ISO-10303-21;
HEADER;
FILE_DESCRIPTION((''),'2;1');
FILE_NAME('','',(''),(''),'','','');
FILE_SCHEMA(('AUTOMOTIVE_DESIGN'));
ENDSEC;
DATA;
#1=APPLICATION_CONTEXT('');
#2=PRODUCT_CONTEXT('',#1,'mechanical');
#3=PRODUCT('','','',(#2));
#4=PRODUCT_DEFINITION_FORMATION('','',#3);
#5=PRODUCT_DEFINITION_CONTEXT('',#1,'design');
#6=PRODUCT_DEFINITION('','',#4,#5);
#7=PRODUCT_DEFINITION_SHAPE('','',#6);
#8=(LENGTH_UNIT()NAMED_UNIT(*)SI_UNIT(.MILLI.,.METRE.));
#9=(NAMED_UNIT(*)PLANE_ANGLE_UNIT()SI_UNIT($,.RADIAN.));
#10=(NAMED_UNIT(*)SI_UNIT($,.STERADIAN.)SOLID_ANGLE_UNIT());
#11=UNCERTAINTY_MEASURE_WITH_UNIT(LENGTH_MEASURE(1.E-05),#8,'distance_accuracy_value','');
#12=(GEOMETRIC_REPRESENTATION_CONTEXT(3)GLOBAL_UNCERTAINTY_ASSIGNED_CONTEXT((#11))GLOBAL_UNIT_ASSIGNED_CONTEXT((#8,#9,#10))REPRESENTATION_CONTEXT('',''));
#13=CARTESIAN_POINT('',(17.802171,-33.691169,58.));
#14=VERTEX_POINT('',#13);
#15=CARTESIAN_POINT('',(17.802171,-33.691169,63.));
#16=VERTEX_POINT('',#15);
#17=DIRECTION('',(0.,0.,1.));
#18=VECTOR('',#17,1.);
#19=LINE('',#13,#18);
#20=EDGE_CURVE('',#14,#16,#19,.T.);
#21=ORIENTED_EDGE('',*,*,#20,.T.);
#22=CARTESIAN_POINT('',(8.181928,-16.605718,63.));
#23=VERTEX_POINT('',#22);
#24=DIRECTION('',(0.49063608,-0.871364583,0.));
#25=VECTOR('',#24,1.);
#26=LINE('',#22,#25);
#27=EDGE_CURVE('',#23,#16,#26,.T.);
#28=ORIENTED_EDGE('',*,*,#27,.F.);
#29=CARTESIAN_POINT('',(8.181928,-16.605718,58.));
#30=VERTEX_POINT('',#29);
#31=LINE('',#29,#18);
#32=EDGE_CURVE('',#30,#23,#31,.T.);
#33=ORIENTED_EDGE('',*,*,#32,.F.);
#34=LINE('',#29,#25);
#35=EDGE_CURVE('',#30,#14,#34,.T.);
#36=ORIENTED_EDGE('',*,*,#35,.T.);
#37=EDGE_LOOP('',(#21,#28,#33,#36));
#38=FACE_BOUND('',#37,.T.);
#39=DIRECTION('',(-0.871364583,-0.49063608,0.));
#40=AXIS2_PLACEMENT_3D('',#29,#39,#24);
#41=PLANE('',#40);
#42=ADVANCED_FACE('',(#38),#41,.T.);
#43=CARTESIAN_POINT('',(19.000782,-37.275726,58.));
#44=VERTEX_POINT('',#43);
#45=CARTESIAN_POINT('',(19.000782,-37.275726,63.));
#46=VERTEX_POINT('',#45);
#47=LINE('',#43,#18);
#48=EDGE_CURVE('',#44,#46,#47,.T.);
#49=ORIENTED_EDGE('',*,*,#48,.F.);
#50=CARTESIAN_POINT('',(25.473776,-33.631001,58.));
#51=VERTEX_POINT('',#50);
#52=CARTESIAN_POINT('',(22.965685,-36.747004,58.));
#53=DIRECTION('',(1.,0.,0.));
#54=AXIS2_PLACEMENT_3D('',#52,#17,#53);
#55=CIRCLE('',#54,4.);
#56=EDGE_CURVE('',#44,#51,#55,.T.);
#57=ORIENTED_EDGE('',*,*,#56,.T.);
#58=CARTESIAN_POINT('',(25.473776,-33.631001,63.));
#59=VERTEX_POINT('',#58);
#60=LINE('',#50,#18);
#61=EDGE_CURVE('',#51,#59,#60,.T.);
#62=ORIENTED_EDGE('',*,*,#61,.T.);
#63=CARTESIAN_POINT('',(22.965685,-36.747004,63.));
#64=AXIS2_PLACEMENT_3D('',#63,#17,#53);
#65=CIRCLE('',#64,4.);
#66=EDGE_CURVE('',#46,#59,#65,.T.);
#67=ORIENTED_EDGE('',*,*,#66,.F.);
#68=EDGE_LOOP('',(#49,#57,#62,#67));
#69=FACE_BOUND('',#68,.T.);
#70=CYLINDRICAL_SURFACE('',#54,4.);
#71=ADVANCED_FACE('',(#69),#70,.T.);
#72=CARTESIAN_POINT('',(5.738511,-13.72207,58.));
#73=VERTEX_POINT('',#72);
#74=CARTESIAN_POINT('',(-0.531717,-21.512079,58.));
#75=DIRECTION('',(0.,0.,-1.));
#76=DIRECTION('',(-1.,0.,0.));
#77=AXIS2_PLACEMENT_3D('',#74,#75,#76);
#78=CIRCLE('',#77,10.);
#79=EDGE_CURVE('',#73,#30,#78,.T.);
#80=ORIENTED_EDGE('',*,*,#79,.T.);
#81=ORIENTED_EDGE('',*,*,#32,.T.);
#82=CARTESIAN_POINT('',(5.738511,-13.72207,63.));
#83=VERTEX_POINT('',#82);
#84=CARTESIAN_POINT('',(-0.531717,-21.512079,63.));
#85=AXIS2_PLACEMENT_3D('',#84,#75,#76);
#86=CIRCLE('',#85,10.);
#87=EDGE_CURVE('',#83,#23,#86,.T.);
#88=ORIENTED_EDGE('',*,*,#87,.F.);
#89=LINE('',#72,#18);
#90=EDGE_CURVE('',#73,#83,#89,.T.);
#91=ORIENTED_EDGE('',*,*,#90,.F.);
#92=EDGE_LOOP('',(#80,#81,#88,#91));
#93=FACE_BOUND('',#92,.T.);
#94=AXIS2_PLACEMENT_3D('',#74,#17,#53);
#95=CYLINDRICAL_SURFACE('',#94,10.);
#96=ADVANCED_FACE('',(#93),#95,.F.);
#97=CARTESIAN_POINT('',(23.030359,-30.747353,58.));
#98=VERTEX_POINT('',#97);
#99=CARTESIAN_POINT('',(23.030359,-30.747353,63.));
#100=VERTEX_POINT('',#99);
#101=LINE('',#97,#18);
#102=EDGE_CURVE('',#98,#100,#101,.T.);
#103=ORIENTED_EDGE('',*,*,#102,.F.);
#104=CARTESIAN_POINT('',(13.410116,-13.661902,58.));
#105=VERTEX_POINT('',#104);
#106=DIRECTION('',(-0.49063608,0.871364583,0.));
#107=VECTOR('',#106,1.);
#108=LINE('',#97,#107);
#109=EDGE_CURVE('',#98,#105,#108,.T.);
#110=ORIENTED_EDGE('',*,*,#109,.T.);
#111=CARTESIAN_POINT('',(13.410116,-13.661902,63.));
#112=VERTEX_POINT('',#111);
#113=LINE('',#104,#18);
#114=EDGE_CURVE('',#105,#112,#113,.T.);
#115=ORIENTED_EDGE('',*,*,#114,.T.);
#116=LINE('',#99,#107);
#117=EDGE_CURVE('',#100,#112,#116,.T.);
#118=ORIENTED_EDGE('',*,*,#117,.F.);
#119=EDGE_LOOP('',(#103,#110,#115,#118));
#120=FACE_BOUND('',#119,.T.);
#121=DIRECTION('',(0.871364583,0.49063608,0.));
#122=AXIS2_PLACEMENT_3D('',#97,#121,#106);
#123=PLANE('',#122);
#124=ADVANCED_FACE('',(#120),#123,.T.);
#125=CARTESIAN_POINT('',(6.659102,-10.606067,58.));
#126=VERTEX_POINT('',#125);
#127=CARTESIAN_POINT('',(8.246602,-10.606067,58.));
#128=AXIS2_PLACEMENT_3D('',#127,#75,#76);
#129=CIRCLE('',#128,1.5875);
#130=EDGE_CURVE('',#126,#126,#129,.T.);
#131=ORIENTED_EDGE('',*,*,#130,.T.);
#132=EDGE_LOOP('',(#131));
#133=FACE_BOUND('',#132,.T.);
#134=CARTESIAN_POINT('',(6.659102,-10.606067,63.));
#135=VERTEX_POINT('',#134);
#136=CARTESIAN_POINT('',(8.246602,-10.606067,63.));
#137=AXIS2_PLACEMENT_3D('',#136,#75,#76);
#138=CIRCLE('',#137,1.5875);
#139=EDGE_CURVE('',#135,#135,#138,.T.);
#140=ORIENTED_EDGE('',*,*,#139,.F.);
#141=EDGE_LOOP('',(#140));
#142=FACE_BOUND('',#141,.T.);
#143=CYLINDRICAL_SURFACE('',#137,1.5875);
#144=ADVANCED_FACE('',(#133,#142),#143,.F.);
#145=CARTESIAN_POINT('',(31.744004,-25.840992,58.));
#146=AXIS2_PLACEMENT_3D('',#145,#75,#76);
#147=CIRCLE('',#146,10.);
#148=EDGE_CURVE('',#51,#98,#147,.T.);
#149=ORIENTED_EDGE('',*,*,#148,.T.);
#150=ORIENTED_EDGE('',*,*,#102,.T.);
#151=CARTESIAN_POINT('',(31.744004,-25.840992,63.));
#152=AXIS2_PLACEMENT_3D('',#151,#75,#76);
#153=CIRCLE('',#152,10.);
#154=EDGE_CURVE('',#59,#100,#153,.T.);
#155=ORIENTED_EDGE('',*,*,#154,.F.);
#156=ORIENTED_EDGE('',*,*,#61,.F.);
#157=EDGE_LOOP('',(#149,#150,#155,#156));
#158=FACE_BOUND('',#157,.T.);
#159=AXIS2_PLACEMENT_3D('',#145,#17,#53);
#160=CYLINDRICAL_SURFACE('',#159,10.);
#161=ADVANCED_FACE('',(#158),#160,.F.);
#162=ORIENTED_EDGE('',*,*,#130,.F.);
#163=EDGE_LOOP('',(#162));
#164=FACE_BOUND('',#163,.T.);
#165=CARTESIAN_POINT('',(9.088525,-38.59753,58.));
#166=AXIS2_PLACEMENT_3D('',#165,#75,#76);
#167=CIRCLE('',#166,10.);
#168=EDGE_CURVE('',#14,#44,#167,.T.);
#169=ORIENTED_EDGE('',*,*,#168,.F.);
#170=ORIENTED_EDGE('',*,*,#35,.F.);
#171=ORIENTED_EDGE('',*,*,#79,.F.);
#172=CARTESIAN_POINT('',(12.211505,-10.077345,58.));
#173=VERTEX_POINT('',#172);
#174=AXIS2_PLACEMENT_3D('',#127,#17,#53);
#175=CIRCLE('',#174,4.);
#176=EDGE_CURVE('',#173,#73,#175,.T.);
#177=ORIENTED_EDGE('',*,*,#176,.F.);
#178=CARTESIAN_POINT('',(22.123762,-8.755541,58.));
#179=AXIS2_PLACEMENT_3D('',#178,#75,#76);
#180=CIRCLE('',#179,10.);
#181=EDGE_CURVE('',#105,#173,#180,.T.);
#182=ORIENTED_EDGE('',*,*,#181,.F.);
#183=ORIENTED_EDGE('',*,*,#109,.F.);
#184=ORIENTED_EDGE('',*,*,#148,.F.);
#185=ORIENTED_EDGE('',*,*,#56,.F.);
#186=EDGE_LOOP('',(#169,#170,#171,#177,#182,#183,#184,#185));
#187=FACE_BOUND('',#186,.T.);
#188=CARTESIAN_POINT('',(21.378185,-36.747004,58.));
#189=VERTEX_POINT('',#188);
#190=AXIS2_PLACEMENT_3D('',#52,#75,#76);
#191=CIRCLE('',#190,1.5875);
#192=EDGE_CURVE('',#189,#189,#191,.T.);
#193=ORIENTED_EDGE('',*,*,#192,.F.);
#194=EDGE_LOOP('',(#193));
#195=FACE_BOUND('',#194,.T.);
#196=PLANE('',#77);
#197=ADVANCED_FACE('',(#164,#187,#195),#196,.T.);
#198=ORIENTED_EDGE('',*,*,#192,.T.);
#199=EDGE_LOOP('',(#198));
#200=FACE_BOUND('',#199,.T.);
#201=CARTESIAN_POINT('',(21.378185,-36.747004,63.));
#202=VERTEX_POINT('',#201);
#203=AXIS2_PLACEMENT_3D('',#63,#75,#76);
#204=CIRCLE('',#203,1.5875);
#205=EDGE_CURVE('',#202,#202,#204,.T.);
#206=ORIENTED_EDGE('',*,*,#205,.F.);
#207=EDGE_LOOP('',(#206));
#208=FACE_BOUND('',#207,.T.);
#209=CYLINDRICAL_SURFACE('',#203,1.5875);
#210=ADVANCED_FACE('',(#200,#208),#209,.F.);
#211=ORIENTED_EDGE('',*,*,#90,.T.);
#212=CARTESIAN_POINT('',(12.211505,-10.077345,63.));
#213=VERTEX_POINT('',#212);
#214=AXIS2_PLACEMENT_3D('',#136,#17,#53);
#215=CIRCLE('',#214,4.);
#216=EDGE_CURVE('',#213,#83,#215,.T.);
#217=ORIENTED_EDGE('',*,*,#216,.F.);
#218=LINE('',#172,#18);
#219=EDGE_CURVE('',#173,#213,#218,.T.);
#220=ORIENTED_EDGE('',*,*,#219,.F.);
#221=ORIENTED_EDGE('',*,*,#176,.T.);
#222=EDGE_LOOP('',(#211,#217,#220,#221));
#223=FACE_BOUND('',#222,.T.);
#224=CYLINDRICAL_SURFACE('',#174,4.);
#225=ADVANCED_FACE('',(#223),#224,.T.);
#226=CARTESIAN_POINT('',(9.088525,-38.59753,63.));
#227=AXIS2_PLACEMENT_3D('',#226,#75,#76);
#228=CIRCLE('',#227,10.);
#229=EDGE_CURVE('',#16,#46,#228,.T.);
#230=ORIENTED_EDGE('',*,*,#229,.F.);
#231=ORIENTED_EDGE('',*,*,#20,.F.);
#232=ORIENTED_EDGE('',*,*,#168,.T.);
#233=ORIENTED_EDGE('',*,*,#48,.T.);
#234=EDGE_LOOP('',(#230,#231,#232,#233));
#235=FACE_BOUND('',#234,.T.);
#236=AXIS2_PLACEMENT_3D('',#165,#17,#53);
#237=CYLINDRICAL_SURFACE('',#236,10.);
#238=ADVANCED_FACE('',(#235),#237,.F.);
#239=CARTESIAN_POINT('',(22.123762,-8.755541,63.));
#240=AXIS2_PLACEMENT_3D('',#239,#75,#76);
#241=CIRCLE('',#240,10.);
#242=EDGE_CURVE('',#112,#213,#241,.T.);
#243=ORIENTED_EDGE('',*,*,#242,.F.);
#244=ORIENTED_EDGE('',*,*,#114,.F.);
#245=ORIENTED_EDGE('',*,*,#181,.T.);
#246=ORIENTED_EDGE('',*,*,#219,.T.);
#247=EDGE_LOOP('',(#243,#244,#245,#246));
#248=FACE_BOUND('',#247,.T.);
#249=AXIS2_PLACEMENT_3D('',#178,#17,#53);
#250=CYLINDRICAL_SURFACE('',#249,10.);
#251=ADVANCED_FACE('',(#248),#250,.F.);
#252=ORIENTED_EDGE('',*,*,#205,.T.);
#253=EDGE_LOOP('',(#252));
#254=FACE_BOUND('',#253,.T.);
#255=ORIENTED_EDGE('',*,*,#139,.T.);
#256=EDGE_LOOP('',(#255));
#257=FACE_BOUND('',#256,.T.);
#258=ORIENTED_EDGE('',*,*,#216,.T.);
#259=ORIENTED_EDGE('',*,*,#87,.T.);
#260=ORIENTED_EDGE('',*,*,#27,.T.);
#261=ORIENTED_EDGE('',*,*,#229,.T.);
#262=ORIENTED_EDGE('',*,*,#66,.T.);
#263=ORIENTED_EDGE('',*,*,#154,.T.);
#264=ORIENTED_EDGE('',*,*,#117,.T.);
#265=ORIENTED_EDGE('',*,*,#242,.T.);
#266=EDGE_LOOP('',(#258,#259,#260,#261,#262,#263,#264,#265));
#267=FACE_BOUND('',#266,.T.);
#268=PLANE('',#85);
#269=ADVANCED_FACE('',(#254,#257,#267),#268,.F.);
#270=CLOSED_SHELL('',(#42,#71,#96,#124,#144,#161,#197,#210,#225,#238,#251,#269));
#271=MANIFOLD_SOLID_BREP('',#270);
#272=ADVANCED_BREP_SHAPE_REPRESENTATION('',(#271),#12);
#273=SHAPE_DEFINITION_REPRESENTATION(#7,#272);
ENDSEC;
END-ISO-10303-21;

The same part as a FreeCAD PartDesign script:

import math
import FreeCAD as App
import Part
import Sketcher

doc = App.newDocument("Part")
body = doc.addObject("PartDesign::Body", "Body")

sketch1 = doc.addObject("Sketcher::SketchObject", "Sketch")
body.addObject(sketch1)
sketch1.AttachmentSupport = (doc.XY_Plane, [""])
sketch1.MapMode = "FlatFace"
sketch1.AttachmentOffset = App.Placement(App.Vector(0, 0, 63), App.Rotation())
sketch1.addGeometry([
    Part.LineSegment(App.Vector(8.2, -16.6, 0), App.Vector(17.8, -33.7, 0)),
    Part.ArcOfCircle(Part.Circle(App.Vector(9.1, -38.6, 0), App.Vector(0, 0, 1), 10), math.radians(8), math.radians(29)),
    Part.ArcOfCircle(Part.Circle(App.Vector(23, -36.7, 0), App.Vector(0, 0, 1), 4), math.radians(-172), math.radians(51)),
    Part.ArcOfCircle(Part.Circle(App.Vector(31.7, -25.8, 0), App.Vector(0, 0, 1), 10), math.radians(-151), math.radians(-129)),
    Part.LineSegment(App.Vector(23, -30.7, 0), App.Vector(13.4, -13.7, 0)),
    Part.ArcOfCircle(Part.Circle(App.Vector(22.1, -8.8, 0), App.Vector(0, 0, 1), 10), math.radians(-172), math.radians(-151)),
    Part.ArcOfCircle(Part.Circle(App.Vector(8.2, -10.6, 0), App.Vector(0, 0, 1), 4), math.radians(8), math.radians(231)),
    Part.ArcOfCircle(Part.Circle(App.Vector(-0.5, -21.5, 0), App.Vector(0, 0, 1), 10), math.radians(29), math.radians(51)),
    Part.Circle(App.Vector(23, -36.7, 0), App.Vector(0, 0, 1), 2),
    Part.Circle(App.Vector(8.2, -10.6, 0), App.Vector(0, 0, 1), 2),
], False)
sketch1.addConstraint([
    Sketcher.Constraint("Tangent", 0, 2, 1, 2),
    Sketcher.Constraint("Tangent", 1, 1, 2, 1),
    Sketcher.Constraint("Tangent", 2, 2, 3, 2),
    Sketcher.Constraint("Tangent", 3, 1, 4, 1),
    Sketcher.Constraint("Tangent", 4, 2, 5, 2),
    Sketcher.Constraint("Tangent", 5, 1, 6, 1),
    Sketcher.Constraint("Tangent", 6, 2, 7, 2),
    Sketcher.Constraint("Tangent", 7, 1, 0, 1),
    Sketcher.Constraint("Coincident", 8, 3, 2, 3),
    Sketcher.Constraint("Coincident", 9, 3, 6, 3),
    Sketcher.Constraint("Equal", 1, 3),
    Sketcher.Constraint("Equal", 3, 5),
    Sketcher.Constraint("Equal", 2, 6),
    Sketcher.Constraint("Equal", 5, 7),
    Sketcher.Constraint("Equal", 8, 9),
    Sketcher.Constraint("Parallel", 0, 4),
    Sketcher.Constraint("Equal", 0, 4),
    Sketcher.Constraint("Diameter", 8, 4.0),
    Sketcher.Constraint("Radius", 1, 10.0),
    Sketcher.Constraint("Radius", 2, 4.0),
    Sketcher.Constraint("DistanceY", 2, 2, -1, 1, 33.631001),
    Sketcher.Constraint("DistanceY", 4, 2, -1, 1, 13.661902),
    Sketcher.Constraint("DistanceY", 1, 3, -1, 1, 38.59753),
    Sketcher.Constraint("DistanceY", 3, 3, -1, 1, 25.840992),
    Sketcher.Constraint("DistanceX", -1, 1, 5, 3, 22.123762),
    Sketcher.Constraint("DistanceY", 5, 3, -1, 1, 8.755541),
])
pad1 = doc.addObject("PartDesign::Pad", "Pad")
body.addObject(pad1)
pad1.Profile = sketch1
pad1.Length = 5
pad1.Reversed = True

sketch2 = doc.addObject("Sketcher::SketchObject", "Sketch001")
body.addObject(sketch2)
sketch2.AttachmentSupport = (doc.XY_Plane, [""])
sketch2.MapMode = "FlatFace"
sketch2.AttachmentOffset = App.Placement(App.Vector(0, 0, 58), App.Rotation())
sketch2.addGeometry([
    Part.Circle(App.Vector(23, -36.7, 0), App.Vector(0, 0, 1), 2),
    Part.Circle(App.Vector(23, -36.7, 0), App.Vector(0, 0, 1), 1.6),
], False)
sketch2.addConstraint([
    Sketcher.Constraint("Coincident", 1, 3, 0, 3),
    Sketcher.Constraint("Diameter", 0, 4.0),
    Sketcher.Constraint("Diameter", 1, 3.175),
    Sketcher.Constraint("DistanceX", -1, 1, 0, 3, 22.965685),
    Sketcher.Constraint("DistanceY", 0, 3, -1, 1, 36.747004),
])
pad2 = doc.addObject("PartDesign::Pad", "Pad001")
body.addObject(pad2)
pad2.Profile = sketch2
pad2.Length = 5

sketch3 = doc.addObject("Sketcher::SketchObject", "Sketch002")
body.addObject(sketch3)
sketch3.AttachmentSupport = (doc.XY_Plane, [""])
sketch3.MapMode = "FlatFace"
sketch3.AttachmentOffset = App.Placement(App.Vector(0, 0, 58), App.Rotation())
sketch3.addGeometry([
    Part.Circle(App.Vector(8.2, -10.6, 0), App.Vector(0, 0, 1), 2),
    Part.Circle(App.Vector(8.2, -10.6, 0), App.Vector(0, 0, 1), 1.6),
], False)
sketch3.addConstraint([
    Sketcher.Constraint("Coincident", 1, 3, 0, 3),
    Sketcher.Constraint("Diameter", 0, 4.0),
    Sketcher.Constraint("Diameter", 1, 3.175),
    Sketcher.Constraint("DistanceX", -1, 1, 0, 3, 8.246602),
    Sketcher.Constraint("DistanceY", 0, 3, -1, 1, 10.606067),
])
pad3 = doc.addObject("PartDesign::Pad", "Pad002")
body.addObject(pad3)
pad3.Profile = sketch3
pad3.Length = 5

doc.recompute()
